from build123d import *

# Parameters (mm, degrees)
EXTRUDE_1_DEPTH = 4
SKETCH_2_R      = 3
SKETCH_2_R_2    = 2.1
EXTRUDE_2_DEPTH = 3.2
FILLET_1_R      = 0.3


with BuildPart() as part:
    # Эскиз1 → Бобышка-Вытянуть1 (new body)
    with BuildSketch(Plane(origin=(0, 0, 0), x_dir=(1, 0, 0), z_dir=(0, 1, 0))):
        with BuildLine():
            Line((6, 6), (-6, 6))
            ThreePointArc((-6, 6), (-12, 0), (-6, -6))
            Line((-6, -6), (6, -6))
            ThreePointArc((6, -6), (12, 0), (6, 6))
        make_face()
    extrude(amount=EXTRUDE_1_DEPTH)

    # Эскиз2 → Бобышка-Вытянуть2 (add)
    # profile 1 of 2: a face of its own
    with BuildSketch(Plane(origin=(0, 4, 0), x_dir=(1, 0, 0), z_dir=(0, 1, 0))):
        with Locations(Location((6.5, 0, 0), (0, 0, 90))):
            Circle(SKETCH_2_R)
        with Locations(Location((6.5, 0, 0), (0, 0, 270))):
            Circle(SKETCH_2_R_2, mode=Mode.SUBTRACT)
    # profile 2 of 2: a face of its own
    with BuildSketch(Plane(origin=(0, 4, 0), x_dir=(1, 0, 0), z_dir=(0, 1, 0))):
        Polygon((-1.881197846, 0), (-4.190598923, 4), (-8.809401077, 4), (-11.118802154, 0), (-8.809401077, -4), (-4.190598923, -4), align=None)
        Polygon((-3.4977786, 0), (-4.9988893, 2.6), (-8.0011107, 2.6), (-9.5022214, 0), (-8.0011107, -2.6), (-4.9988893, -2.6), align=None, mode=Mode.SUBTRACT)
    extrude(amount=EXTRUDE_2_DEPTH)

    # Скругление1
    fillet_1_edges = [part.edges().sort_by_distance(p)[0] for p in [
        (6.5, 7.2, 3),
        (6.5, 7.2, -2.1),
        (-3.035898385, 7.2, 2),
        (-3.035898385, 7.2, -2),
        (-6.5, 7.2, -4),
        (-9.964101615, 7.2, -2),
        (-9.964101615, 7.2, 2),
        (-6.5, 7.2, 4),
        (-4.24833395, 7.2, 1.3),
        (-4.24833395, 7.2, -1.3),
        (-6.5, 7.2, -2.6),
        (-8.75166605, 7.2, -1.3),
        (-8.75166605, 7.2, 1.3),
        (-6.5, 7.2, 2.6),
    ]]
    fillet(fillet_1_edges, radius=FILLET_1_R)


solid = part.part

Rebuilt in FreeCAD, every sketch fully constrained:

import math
import FreeCAD as App
import Part
import Sketcher
Q = App.Units.Quantity


def edges_at(feature, points):
    """Names of the edges that pass closest to the given points."""
    edges = feature.Shape.Edges
    near = lambda p: min(range(len(edges)), key=lambda i: edges[i].distToShape(Part.Vertex(*p))[0])
    return sorted({f"Edge{near(p) + 1}" for p in points})


def add_polygon(sketch, points):
    """Adds a closed chain of lines whose ends are joined by coincident constraints."""
    first, n = sketch.GeometryCount, len(points)
    for a, b in zip(points, points[1:] + points[:1]):
        sketch.addGeometry(Part.LineSegment(App.Vector(*a, 0), App.Vector(*b, 0)), False)
    for i in range(n):
        sketch.addConstraint(Sketcher.Constraint("Coincident", first + i, 2, first + (i + 1) % n, 1))

doc = App.newDocument("Part")
body = doc.addObject("PartDesign::Body", "Body")

# Sketch on XZ plane
sketch1 = doc.addObject("Sketcher::SketchObject", "Sketch")
body.addObject(sketch1)
sketch1.AttachmentSupport = (doc.XZ_Plane, [""])
sketch1.MapMode = "FlatFace"
sketch1.addGeometry([
    Part.LineSegment(App.Vector(6, -6, 0), App.Vector(-6, -6, 0)),
    Part.ArcOfCircle(Part.Circle(App.Vector(-6, 0, 0), App.Vector(0, 0, 1), 6), math.radians(90), math.radians(270)),
    Part.LineSegment(App.Vector(-6, 6, 0), App.Vector(6, 6, 0)),
    Part.ArcOfCircle(Part.Circle(App.Vector(6, 0, 0), App.Vector(0, 0, 1), 6), math.radians(-90), math.radians(90)),
], False)
sketch1.addConstraint([
    Sketcher.Constraint("Tangent", 0, 2, 1, 2),
    Sketcher.Constraint("Tangent", 1, 1, 2, 1),
    Sketcher.Constraint("Tangent", 2, 2, 3, 2),
    Sketcher.Constraint("Tangent", 3, 1, 0, 1),
    Sketcher.Constraint("Horizontal", 0),
    Sketcher.Constraint("Horizontal", 2),
    Sketcher.Constraint("Symmetric", 1, 3, 3, 3, -1, 1),
    Sketcher.Constraint("Radius", 1, 6.0),
    Sketcher.Constraint("DistanceX", 0, 2, 0, 1, 12.0),
])
pad1 = doc.addObject("PartDesign::Pad", "Pad")
body.addObject(pad1)
pad1.Profile = sketch1
pad1.Length = 4
pad1.Reversed = True

# Sketch on XZ plane
sketch2 = doc.addObject("Sketcher::SketchObject", "Sketch001")
body.addObject(sketch2)
sketch2.AttachmentSupport = (doc.XZ_Plane, [""])
sketch2.MapMode = "FlatFace"
sketch2.AttachmentOffset = App.Placement(App.Vector(0, 0, -4), App.Rotation())
sketch2.addGeometry(Part.Circle(App.Vector(6.5, 0, 0), App.Vector(0, 0, 1), 3), False)  # 0
sketch2.addGeometry(Part.Circle(App.Vector(6.5, 0, 0), App.Vector(0, 0, 1), 2.1), False)  # 1
add_polygon(sketch2, [(-1.9, 0), (-4.2, -4), (-8.8, -4), (-11.1, 0), (-8.8, 4), (-4.2, 4)])  # lines 2-7
add_polygon(sketch2, [(-5, -2.6), (-3.5, 0), (-5, 2.6), (-8, 2.6), (-9.5, 0), (-8, -2.6)])  # lines 8-13
sketch2.addConstraint([
    Sketcher.Constraint("Horizontal", 3),
    Sketcher.Constraint("Horizontal", 6),
    Sketcher.Constraint("Horizontal", 10),
    Sketcher.Constraint("Horizontal", 13),
    Sketcher.Constraint("Coincident", 1, 3, 0, 3),
    Sketcher.Constraint("Symmetric", 3, 2, 5, 2, -1),
    Sketcher.Constraint("Symmetric", 10, 2, 12, 2, -1),
    Sketcher.Constraint("PointOnObject", 0, 3, -1),
    Sketcher.Constraint("PointOnObject", 4, 2, -1),
    Sketcher.Constraint("PointOnObject", 7, 2, -1),
    Sketcher.Constraint("PointOnObject", 8, 2, -1),
    Sketcher.Constraint("PointOnObject", 11, 2, -1),
    Sketcher.Constraint("Parallel", 2, 5),
    Sketcher.Constraint("Parallel", 4, 7),
    Sketcher.Constraint("Parallel", 5, 8),
    Sketcher.Constraint("Parallel", 7, 9),
    Sketcher.Constraint("Parallel", 8, 11),
    Sketcher.Constraint("Diameter", 0, 6.0),
    Sketcher.Constraint("Diameter", 1, 4.2),
    Sketcher.Constraint("Angle", 2, Q("-120 deg")),
    Sketcher.Constraint("DistanceY", 2, 2, -1, 1, 4.0),
    Sketcher.Constraint("DistanceX", -1, 1, 0, 3, 6.5),
    Sketcher.Constraint("DistanceY", -1, 1, 9, 2, 2.6),
    Sketcher.Constraint("DistanceX", 10, 2, 10, 1, 3.002221),
    Sketcher.Constraint("DistanceX", 2, 2, -1, 1, 4.190599),
    Sketcher.Constraint("DistanceX", 3, 2, -1, 1, 8.809401),
    Sketcher.Constraint("DistanceX", 8, 2, -1, 1, 3.497779),
])
pad2 = doc.addObject("PartDesign::Pad", "Pad001")
body.addObject(pad2)
pad2.Profile = sketch2
pad2.Length = 3.2
pad2.Reversed = True
doc.recompute()

fillet = doc.addObject("PartDesign::Fillet", "Fillet")
body.addObject(fillet)
fillet.Base = (pad2, edges_at(pad2, [
    (6.5, 7.2, 3),
    (6.5, 7.2, -2.1),
    (-3.036, 7.2, 2),
    (-3.036, 7.2, -2),
    (-6.5, 7.2, -4),
    (-9.964, 7.2, -2),
    (-9.964, 7.2, 2),
    (-6.5, 7.2, 4),
    (-4.248, 7.2, 1.3),
    (-4.248, 7.2, -1.3),
    (-6.5, 7.2, -2.6),
    (-8.752, 7.2, -1.3),
    (-8.752, 7.2, 1.3),
    (-6.5, 7.2, 2.6),
]))
fillet.Radius = 0.3

doc.recompute()
